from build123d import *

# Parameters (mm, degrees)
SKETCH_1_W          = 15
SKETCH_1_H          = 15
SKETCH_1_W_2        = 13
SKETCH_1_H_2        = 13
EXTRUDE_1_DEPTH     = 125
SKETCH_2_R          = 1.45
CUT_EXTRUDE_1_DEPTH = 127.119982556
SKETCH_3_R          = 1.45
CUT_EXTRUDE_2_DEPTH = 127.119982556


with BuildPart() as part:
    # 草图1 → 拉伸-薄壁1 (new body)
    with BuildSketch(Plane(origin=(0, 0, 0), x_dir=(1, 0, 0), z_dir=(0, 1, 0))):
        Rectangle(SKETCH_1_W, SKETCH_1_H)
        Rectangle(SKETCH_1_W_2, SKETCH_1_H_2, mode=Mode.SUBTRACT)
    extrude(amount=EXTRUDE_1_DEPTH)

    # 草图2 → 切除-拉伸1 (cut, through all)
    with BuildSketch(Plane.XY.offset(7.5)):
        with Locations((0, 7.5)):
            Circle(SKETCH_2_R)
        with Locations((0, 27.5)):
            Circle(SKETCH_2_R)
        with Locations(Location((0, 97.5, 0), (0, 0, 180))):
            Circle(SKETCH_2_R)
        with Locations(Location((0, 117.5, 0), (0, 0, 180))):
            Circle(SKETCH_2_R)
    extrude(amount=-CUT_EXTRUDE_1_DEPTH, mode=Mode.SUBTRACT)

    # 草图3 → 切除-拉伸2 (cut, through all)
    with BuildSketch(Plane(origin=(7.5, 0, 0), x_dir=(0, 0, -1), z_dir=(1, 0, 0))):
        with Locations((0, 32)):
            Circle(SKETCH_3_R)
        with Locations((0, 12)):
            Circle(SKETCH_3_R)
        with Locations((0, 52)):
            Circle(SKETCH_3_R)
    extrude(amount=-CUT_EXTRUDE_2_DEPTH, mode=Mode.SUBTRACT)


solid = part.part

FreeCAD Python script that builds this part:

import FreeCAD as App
import Part
import Sketcher

V = App.Vector
Q = App.Units.Quantity

doc = App.newDocument("Part")
body = doc.addObject("PartDesign::Body", "Body")

# Sketch on XZ plane
sketch1 = body.newObject("Sketcher::SketchObject", "Sketch")
sketch1.AttachmentSupport = (doc.getObject("XZ_Plane"), [""])
sketch1.MapMode = "FlatFace"
sketch1.addGeometry([
    Part.LineSegment(V(-8, -8, 0), V(-8, 8, 0)),  # 0
    Part.LineSegment(V(-8, 8, 0), V(8, 8, 0)),  # 1
    Part.LineSegment(V(8, 8, 0), V(8, -8, 0)),  # 2
    Part.LineSegment(V(8, -8, 0), V(-8, -8, 0)),  # 3
    Part.LineSegment(V(6, 6, 0), V(-6, 6, 0)),  # 4
    Part.LineSegment(V(-6, 6, 0), V(-6, -6, 0)),  # 5
    Part.LineSegment(V(-6, -6, 0), V(6, -6, 0)),  # 6
    Part.LineSegment(V(6, -6, 0), V(6, 6, 0)),  # 7
], False)
sketch1.addConstraint([
    Sketcher.Constraint("Coincident", 0, 2, 1, 1),
    Sketcher.Constraint("Coincident", 1, 2, 2, 1),
    Sketcher.Constraint("Coincident", 2, 2, 3, 1),
    Sketcher.Constraint("Coincident", 3, 2, 0, 1),
    Sketcher.Constraint("Coincident", 4, 2, 5, 1),
    Sketcher.Constraint("Coincident", 5, 2, 6, 1),
    Sketcher.Constraint("Coincident", 6, 2, 7, 1),
    Sketcher.Constraint("Coincident", 7, 2, 4, 1),
    Sketcher.Constraint("Vertical", 0),
    Sketcher.Constraint("Horizontal", 1),
    Sketcher.Constraint("Vertical", 2),
    Sketcher.Constraint("Horizontal", 3),
    Sketcher.Constraint("Horizontal", 4),
    Sketcher.Constraint("Vertical", 5),
    Sketcher.Constraint("Horizontal", 6),
    Sketcher.Constraint("Vertical", 7),
    Sketcher.Constraint("Symmetric", 0, 2, 2, 2, -1, 1),
    Sketcher.Constraint("Symmetric", 4, 2, 6, 2, -1, 1),
    Sketcher.Constraint("Equal", 3, 0),
    Sketcher.Constraint("Equal", 6, 5),
    Sketcher.Constraint("DistanceX", 1, 1, 1, 2, Q("15 mm")),
    Sketcher.Constraint("DistanceX", 4, 2, 4, 1, Q("13 mm")),
])
pad1 = body.newObject("PartDesign::Pad", "Pad")
pad1.Profile = sketch1
pad1.Length = 125
pad1.Reversed = True

# Sketch on XY plane
sketch2 = body.newObject("Sketcher::SketchObject", "Sketch001")
sketch2.AttachmentSupport = (doc.getObject("XY_Plane"), [""])
sketch2.MapMode = "FlatFace"
sketch2.AttachmentOffset = App.Placement(V(0, 0, 7.5), App.Rotation())
sketch2.addGeometry([
    Part.Circle(V(0, 7.5, 0), V(0, 0, 1), 1.4),
    Part.Circle(V(0, 27.5, 0), V(0, 0, 1), 1.4),
    Part.Circle(V(0, 97.5, 0), V(0, 0, 1), 1.4),
    Part.Circle(V(0, 117.5, 0), V(0, 0, 1), 1.4),
], False)
sketch2.addConstraint([
    Sketcher.Constraint("Equal", 0, 1),
    Sketcher.Constraint("Equal", 1, 2),
    Sketcher.Constraint("Equal", 2, 3),
    Sketcher.Constraint("PointOnObject", 0, 3, -2),
    Sketcher.Constraint("PointOnObject", 1, 3, -2),
    Sketcher.Constraint("PointOnObject", 2, 3, -2),
    Sketcher.Constraint("PointOnObject", 3, 3, -2),
    Sketcher.Constraint("Diameter", 0, Q("2.9 mm")),
    Sketcher.Constraint("DistanceY", 0, 3, 1, 3, Q("20 mm")),
    Sketcher.Constraint("DistanceY", 1, 3, 2, 3, Q("70 mm")),
    Sketcher.Constraint("DistanceY", 2, 3, 3, 3, Q("20 mm")),
    Sketcher.Constraint("DistanceY", -1, 1, 0, 3, Q("7.5 mm")),
])
pocket1 = body.newObject("PartDesign::Pocket", "Pocket")
pocket1.Profile = sketch2
pocket1.Type = "ThroughAll"

# Sketch on YZ plane
sketch3 = body.newObject("Sketcher::SketchObject", "Sketch002")
sketch3.AttachmentSupport = (doc.getObject("YZ_Plane"), [""])
sketch3.MapMode = "FlatFace"
sketch3.AttachmentOffset = App.Placement(V(0, 0, 7.5), App.Rotation())
sketch3.addGeometry([
    Part.Circle(V(32, 0, 0), V(0, 0, 1), 1.4),
    Part.Circle(V(12, 0, 0), V(0, 0, 1), 1.4),
    Part.Circle(V(52, 0, 0), V(0, 0, 1), 1.4),
], False)
sketch3.addConstraint([
    Sketcher.Constraint("Equal", 0, 1),
    Sketcher.Constraint("Equal", 1, 2),
    Sketcher.Constraint("PointOnObject", 0, 3, -1),
    Sketcher.Constraint("PointOnObject", 1, 3, -1),
    Sketcher.Constraint("PointOnObject", 2, 3, -1),
    Sketcher.Constraint("Diameter", 0, Q("2.9 mm")),
    Sketcher.Constraint("DistanceX", -1, 1, 0, 3, Q("32 mm")),
    Sketcher.Constraint("DistanceX", -1, 1, 1, 3, Q("12 mm")),
    Sketcher.Constraint("DistanceX", -1, 1, 2, 3, Q("52 mm")),
])
pocket2 = body.newObject("PartDesign::Pocket", "Pocket001")
pocket2.Profile = sketch3
pocket2.Type = "ThroughAll"

doc.recompute()
